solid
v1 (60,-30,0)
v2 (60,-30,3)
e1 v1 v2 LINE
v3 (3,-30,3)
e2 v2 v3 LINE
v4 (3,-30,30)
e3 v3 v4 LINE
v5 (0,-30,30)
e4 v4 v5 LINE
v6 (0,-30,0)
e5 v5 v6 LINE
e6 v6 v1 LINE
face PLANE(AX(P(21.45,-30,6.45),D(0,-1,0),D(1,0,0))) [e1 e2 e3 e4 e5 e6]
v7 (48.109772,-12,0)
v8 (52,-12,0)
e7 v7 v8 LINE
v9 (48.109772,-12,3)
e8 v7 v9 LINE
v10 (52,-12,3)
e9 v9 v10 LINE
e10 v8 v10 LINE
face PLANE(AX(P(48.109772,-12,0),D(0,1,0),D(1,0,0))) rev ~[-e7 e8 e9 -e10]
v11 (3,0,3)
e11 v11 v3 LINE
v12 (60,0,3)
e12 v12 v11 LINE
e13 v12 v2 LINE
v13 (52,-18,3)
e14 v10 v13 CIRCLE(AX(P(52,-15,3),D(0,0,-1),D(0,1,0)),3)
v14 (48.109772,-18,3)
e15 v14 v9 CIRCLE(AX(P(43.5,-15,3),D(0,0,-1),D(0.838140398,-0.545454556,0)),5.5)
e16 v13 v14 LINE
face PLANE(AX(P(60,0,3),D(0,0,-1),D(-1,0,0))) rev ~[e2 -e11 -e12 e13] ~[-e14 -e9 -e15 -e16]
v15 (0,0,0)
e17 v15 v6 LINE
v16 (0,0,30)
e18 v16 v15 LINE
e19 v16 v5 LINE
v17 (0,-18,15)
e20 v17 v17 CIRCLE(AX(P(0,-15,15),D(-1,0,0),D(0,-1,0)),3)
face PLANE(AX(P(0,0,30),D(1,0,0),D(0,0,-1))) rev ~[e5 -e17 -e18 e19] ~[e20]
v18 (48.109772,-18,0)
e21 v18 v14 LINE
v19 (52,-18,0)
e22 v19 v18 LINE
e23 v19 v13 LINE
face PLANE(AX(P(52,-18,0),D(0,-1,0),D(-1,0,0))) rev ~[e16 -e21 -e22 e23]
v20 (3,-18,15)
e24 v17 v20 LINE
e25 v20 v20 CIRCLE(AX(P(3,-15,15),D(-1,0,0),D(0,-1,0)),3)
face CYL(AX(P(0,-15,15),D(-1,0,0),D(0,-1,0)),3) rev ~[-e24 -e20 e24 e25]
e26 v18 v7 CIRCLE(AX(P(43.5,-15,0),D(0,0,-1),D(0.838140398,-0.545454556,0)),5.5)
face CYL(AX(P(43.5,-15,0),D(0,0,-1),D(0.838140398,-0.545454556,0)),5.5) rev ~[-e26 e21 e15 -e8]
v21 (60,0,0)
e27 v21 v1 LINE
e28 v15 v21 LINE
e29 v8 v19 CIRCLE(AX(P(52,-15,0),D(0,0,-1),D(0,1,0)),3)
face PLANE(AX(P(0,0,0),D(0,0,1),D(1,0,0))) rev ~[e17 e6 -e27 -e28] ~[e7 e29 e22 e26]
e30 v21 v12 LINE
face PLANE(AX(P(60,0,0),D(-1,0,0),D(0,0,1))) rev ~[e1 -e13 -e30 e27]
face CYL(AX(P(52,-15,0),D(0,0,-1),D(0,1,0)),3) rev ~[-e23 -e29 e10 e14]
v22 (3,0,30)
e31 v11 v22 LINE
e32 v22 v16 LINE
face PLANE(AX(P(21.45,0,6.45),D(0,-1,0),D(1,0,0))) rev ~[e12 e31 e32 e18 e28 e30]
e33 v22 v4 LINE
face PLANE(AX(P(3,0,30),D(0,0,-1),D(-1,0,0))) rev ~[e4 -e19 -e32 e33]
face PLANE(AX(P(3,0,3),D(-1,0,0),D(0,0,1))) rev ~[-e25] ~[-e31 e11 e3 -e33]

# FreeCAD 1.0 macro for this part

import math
import FreeCAD as App
import Part
import Sketcher

V = App.Vector
Q = App.Units.Quantity


def add_polygon(sketch, points):
    """Adds a closed chain of lines whose ends are joined by coincident constraints."""
    first, n = sketch.GeometryCount, len(points)
    for a, b in zip(points, points[1:] + points[:1]):
        sketch.addGeometry(Part.LineSegment(App.Vector(*a, 0), App.Vector(*b, 0)), False)
    for i in range(n):
        sketch.addConstraint(Sketcher.Constraint("Coincident", first + i, 2, first + (i + 1) % n, 1))

doc = App.newDocument("Part")
params = doc.addObject("Spreadsheet::Sheet", "Params")
for row, (alias, value) in enumerate([
    ("sketch1_width", "60 mm"),
    ("sketch1_width2", "57 mm"),
    ("sketch1_height", "30 mm"),
    ("pad1_length", "30 mm"),
    ("sketch2_diameter", "6 mm"),
    ("sketch3_radius", "3 mm"),
    ("sketch3_radius2", "5.5 mm"),
], start=1):
    params.set(f"A{row}", alias)
    params.set(f"B{row}", "=" + value)
    params.setAlias(f"B{row}", alias)

body = doc.addObject("PartDesign::Body", "Body")

# Sketch on XZ plane
sketch1 = body.newObject("Sketcher::SketchObject", "Sketch")
sketch1.AttachmentSupport = (doc.getObject("XZ_Plane"), [""])
sketch1.MapMode = "FlatFace"
add_polygon(sketch1, [(0, 30), (0, 0), (60, 0), (60, 3), (3, 3), (3, 30)])  # lines 0-5
sketch1.addConstraint([
    Sketcher.Constraint("Vertical", 0),
    Sketcher.Constraint("Horizontal", 1),
    Sketcher.Constraint("Vertical", 2),
    Sketcher.Constraint("Horizontal", 3),
    Sketcher.Constraint("Vertical", 4),
    Sketcher.Constraint("Horizontal", 5),
    Sketcher.Constraint("Coincident", 0, 2, -1, 1),
    Sketcher.Constraint("Equal", 5, 2),
    Sketcher.Constraint("DistanceX", 1, 1, 1, 2, Q("60 mm")),
    Sketcher.Constraint("DistanceX", 3, 2, 3, 1, Q("57 mm")),
    Sketcher.Constraint("DistanceY", 0, 2, 0, 1, Q("30 mm")),
])
sketch1.setExpression("Constraints[14]", "Params.sketch1_width")
sketch1.setExpression("Constraints[15]", "Params.sketch1_width2")
sketch1.setExpression("Constraints[16]", "Params.sketch1_height")
pad1 = body.newObject("PartDesign::Pad", "Pad")
pad1.Profile = sketch1
pad1.setExpression("Length", "Params.pad1_length")

# Sketch on YZ plane
sketch2 = body.newObject("Sketcher::SketchObject", "Sketch001")
sketch2.AttachmentSupport = (doc.getObject("YZ_Plane"), [""])
sketch2.MapMode = "FlatFace"
sketch2.addGeometry(Part.Circle(V(-15, 15, 0), V(0, 0, 1), 3), False)
sketch2.addConstraint([
    Sketcher.Constraint("Diameter", 0, Q("6 mm")),
    Sketcher.Constraint("DistanceX", 0, 3, -1, 1, Q("15 mm")),
    Sketcher.Constraint("DistanceY", -1, 1, 0, 3, Q("15 mm")),
])
sketch2.setExpression("Constraints[0]", "Params.sketch2_diameter")
pocket1 = body.newObject("PartDesign::Pocket", "Pocket")
pocket1.Profile = sketch2
pocket1.Type = "ThroughAll"
pocket1.Reversed = True

# Sketch on XY plane
sketch3 = body.newObject("Sketcher::SketchObject", "Sketch002")
sketch3.AttachmentSupport = (doc.getObject("XY_Plane"), [""])
sketch3.MapMode = "FlatFace"
sketch3.addGeometry([
    Part.LineSegment(V(52, -18, 0), V(48.1, -18, 0)),
    Part.ArcOfCircle(Part.Circle(V(43.5, -15, 0), V(0, 0, 1), 5.5), math.radians(33), math.radians(327)),
    Part.LineSegment(V(48.1, -12, 0), V(52, -12, 0)),
    Part.ArcOfCircle(Part.Circle(V(52, -15, 0), V(0, 0, 1), 3), math.radians(-90), math.radians(90)),
], False)
sketch3.addConstraint([
    Sketcher.Constraint("Coincident", 0, 2, 1, 2),
    Sketcher.Constraint("Coincident", 1, 1, 2, 1),
    Sketcher.Constraint("Tangent", 2, 2, 3, 2),
    Sketcher.Constraint("Tangent", 3, 1, 0, 1),
    Sketcher.Constraint("Horizontal", 0),
    Sketcher.Constraint("Horizontal", 2),
    Sketcher.Constraint("Horizontal", 1, 3, 3, 3),
    Sketcher.Constraint("Radius", 3, Q("3 mm")),
    Sketcher.Constraint("Radius", 1, Q("5.5 mm")),
    Sketcher.Constraint("DistanceY", 1, 3, -1, 1, Q("15 mm")),
    Sketcher.Constraint("DistanceX", -1, 1, 3, 3, Q("52 mm")),
    Sketcher.Constraint("DistanceX", -1, 1, 1, 3, Q("43.5 mm")),
])
sketch3.setExpression("Constraints[7]", "Params.sketch3_radius")
sketch3.setExpression("Constraints[8]", "Params.sketch3_radius2")
pocket2 = body.newObject("PartDesign::Pocket", "Pocket001")
pocket2.Profile = sketch3
pocket2.Type = "ThroughAll"
pocket2.Reversed = True

doc.recompute()
